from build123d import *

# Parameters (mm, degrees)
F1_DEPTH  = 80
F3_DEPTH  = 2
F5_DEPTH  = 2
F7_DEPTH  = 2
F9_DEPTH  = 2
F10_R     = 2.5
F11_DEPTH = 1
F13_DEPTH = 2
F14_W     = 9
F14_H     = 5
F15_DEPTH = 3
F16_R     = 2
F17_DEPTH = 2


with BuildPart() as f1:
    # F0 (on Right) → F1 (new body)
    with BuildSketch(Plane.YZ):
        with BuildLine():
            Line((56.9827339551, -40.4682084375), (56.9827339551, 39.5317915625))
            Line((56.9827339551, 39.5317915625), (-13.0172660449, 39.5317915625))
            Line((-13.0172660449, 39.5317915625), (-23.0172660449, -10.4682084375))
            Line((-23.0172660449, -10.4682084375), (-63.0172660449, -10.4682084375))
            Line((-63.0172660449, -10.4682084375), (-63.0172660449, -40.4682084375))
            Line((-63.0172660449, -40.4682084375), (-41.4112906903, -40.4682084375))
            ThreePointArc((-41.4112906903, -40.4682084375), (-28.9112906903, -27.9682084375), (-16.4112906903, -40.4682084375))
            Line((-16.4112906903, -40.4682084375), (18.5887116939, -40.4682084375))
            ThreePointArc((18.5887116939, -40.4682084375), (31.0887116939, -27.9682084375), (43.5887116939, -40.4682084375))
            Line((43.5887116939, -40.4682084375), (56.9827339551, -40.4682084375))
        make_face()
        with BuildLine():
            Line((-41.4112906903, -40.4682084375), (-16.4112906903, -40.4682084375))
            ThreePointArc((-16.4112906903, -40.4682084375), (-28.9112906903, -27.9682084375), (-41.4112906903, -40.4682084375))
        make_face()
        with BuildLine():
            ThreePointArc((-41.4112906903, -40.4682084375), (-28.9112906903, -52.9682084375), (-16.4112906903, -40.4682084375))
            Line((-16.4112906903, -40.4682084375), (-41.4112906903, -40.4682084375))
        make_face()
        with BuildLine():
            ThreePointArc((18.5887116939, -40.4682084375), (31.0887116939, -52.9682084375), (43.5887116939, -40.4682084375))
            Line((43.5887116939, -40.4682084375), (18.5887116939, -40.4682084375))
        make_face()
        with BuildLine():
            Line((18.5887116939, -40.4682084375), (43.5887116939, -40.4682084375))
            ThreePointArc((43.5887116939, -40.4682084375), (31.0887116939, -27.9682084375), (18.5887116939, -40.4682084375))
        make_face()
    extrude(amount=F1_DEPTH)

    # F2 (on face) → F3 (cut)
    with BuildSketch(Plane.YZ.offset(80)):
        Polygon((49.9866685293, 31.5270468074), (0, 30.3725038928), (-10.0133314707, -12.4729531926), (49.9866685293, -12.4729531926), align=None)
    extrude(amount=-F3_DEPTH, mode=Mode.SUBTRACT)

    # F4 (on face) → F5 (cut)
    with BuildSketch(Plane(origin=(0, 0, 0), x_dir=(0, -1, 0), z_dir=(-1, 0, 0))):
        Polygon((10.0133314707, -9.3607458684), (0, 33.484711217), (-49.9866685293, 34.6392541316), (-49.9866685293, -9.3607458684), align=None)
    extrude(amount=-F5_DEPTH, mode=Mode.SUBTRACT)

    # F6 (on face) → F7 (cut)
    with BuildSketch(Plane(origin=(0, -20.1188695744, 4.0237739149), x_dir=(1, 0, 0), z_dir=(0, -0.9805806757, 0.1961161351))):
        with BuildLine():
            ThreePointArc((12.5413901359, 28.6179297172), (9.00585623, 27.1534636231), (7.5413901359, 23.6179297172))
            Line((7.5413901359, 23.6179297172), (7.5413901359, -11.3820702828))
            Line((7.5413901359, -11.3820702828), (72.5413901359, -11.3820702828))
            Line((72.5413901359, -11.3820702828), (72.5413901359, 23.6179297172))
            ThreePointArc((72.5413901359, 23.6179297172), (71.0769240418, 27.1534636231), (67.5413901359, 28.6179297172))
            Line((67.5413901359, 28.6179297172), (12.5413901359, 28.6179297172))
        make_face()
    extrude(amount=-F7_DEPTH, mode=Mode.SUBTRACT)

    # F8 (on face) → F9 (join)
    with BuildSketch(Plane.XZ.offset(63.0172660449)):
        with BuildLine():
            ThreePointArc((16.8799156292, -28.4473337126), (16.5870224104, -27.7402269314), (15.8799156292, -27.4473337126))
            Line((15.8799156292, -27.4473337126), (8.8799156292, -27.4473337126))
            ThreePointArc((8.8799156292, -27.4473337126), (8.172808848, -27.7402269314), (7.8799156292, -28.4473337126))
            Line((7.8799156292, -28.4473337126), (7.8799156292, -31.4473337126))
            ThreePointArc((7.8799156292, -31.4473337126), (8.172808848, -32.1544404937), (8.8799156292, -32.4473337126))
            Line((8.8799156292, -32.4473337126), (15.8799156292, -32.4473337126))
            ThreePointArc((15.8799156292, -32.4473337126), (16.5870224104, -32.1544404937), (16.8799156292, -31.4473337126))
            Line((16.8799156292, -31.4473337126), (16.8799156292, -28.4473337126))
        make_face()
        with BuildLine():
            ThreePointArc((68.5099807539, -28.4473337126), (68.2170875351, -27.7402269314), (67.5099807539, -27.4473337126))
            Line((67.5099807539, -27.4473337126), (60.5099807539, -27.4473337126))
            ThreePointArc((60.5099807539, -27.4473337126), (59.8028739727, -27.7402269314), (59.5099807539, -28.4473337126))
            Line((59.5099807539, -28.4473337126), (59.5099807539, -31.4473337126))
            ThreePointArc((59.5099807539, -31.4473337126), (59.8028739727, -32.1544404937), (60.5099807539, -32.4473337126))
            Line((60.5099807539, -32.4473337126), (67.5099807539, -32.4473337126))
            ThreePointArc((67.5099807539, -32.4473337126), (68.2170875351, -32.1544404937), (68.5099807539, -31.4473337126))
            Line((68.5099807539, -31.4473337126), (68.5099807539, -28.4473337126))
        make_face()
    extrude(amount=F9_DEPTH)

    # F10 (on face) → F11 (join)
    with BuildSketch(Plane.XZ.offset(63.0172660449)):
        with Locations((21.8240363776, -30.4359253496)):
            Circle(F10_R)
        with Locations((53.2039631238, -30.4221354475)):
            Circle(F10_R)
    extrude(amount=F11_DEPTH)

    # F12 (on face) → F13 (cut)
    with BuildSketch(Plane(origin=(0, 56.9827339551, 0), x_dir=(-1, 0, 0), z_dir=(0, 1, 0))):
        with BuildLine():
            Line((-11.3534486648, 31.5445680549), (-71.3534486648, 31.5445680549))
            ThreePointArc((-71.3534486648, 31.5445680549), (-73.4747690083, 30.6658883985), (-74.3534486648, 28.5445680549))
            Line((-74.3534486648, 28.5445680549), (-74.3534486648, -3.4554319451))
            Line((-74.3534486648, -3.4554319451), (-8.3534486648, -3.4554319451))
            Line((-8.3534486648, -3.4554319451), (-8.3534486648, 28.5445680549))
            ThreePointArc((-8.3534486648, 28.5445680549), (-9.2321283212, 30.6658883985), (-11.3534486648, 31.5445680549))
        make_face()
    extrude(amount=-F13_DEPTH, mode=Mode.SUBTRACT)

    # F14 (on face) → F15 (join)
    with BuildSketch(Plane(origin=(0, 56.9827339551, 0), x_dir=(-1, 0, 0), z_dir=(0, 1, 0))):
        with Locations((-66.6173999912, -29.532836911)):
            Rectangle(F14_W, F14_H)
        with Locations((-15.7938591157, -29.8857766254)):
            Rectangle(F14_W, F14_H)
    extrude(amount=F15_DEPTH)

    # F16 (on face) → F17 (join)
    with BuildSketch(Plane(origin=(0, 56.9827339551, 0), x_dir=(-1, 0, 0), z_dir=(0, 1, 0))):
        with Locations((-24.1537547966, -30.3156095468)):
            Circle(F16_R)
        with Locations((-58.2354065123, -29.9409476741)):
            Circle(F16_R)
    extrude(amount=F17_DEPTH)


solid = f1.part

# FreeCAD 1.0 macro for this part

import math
import FreeCAD as App
import Part
import Sketcher
from FreeCAD import Vector


def add_polygon(sketch, points):
    """Adds a closed chain of lines whose ends are joined by coincident constraints."""
    first, n = sketch.GeometryCount, len(points)
    for a, b in zip(points, points[1:] + points[:1]):
        sketch.addGeometry(Part.LineSegment(App.Vector(*a, 0), App.Vector(*b, 0)), False)
    for i in range(n):
        sketch.addConstraint(Sketcher.Constraint("Coincident", first + i, 2, first + (i + 1) % n, 1))

doc = App.newDocument("Part")
body = doc.addObject("PartDesign::Body", "Body")

# Sketch on YZ plane
sketch1 = body.newObject("Sketcher::SketchObject", "Sketch")
sketch1.AttachmentSupport = (doc.getObject("YZ_Plane"), [""])
sketch1.MapMode = "FlatFace"
sketch1.addGeometry([
    Part.LineSegment(Vector(56.982734, -40.468208, 0), Vector(56.982734, 39.531792, 0)),  # 0
    Part.LineSegment(Vector(56.982734, 39.531792, 0), Vector(-13.017266, 39.531792, 0)),  # 1
    Part.LineSegment(Vector(-13.017266, 39.531792, 0), Vector(-23.017266, -10.468208, 0)),  # 2
    Part.LineSegment(Vector(-23.017266, -10.468208, 0), Vector(-63.017266, -10.468208, 0)),  # 3
    Part.LineSegment(Vector(-63.017266, -10.468208, 0), Vector(-63.017266, -40.468208, 0)),  # 4
    Part.LineSegment(Vector(-63.017266, -40.468208, 0), Vector(-41.411291, -40.468208, 0)),  # 5
    Part.ArcOfCircle(Part.Circle(Vector(-28.911291, -40.468208, 0), Vector(0, 0, 1), 12.5), math.radians(180), math.radians(360)),  # 6
    Part.LineSegment(Vector(-16.411291, -40.468208, 0), Vector(18.588712, -40.468208, 0)),  # 7
    Part.ArcOfCircle(Part.Circle(Vector(31.088712, -40.468208, 0), Vector(0, 0, 1), 12.5), math.radians(-180), math.radians(0)),  # 8
    Part.LineSegment(Vector(43.588712, -40.468208, 0), Vector(56.982734, -40.468208, 0)),  # 9
], False)
sketch1.addConstraint([
    Sketcher.Constraint("Coincident", 0, 2, 1, 1),
    Sketcher.Constraint("Coincident", 1, 2, 2, 1),
    Sketcher.Constraint("Coincident", 2, 2, 3, 1),
    Sketcher.Constraint("Coincident", 3, 2, 4, 1),
    Sketcher.Constraint("Coincident", 4, 2, 5, 1),
    Sketcher.Constraint("Coincident", 5, 2, 6, 1),
    Sketcher.Constraint("Coincident", 6, 2, 7, 1),
    Sketcher.Constraint("Coincident", 7, 2, 8, 1),
    Sketcher.Constraint("Coincident", 8, 2, 9, 1),
    Sketcher.Constraint("Coincident", 9, 2, 0, 1),
    Sketcher.Constraint("Vertical", 0),
    Sketcher.Constraint("Horizontal", 1),
    Sketcher.Constraint("Horizontal", 3),
    Sketcher.Constraint("Vertical", 4),
    Sketcher.Constraint("Horizontal", 5),
    Sketcher.Constraint("Horizontal", 7),
    Sketcher.Constraint("Horizontal", 9),
    Sketcher.Constraint("Equal", 6, 8),
    Sketcher.Constraint("Horizontal", 6, 3, 8, 3),
    Sketcher.Constraint("Horizontal", 8, 3, 4, 2),
    Sketcher.Constraint("Horizontal", 5, 2, 6, 2),
    Sketcher.Constraint("Horizontal", 7, 2, 8, 2),
    Sketcher.Constraint("Radius", 6, 12.5),
    Sketcher.Constraint("DistanceX", 1, 2, 1, 1, 70.0),
    Sketcher.Constraint("DistanceX", 3, 2, 3, 1, 40.0),
    Sketcher.Constraint("DistanceY", 0, 1, 0, 2, 80.0),
    Sketcher.Constraint("DistanceY", 4, 2, 4, 1, 30.0),
    Sketcher.Constraint("DistanceX", 2, 2, 1, 2, 10.0),
    Sketcher.Constraint("DistanceX", 5, 1, 5, 2, 21.605975),
    Sketcher.Constraint("DistanceX", 7, 1, 7, 2, 35.000002),
    Sketcher.Constraint("DistanceX", 6, 3, -1, 1, 28.911291),
    Sketcher.Constraint("DistanceY", 6, 3, -1, 1, 40.468208),
])
pad1 = body.newObject("PartDesign::Pad", "Pad")
pad1.Profile = sketch1
pad1.Length = 80

# Sketch on YZ plane
sketch2 = body.newObject("Sketcher::SketchObject", "Sketch001")
sketch2.AttachmentSupport = (doc.getObject("YZ_Plane"), [""])
sketch2.MapMode = "FlatFace"
sketch2.AttachmentOffset = App.Placement(Vector(0, 0, 80), App.Rotation())
add_polygon(sketch2, [(49.986669, 31.527047), (0, 30.372504), (-10.013331, -12.472953), (49.986669, -12.472953)])  # lines 0-3
sketch2.addConstraint([
    Sketcher.Constraint("Horizontal", 2),
    Sketcher.Constraint("Vertical", 3),
    Sketcher.Constraint("PointOnObject", 0, 2, -2),
    Sketcher.Constraint("DistanceX", 2, 1, 2, 2, 60.0),
    Sketcher.Constraint("DistanceY", 3, 1, 3, 2, 44.0),
    Sketcher.Constraint("Distance", 0, 50.0),
    Sketcher.Constraint("Distance", 1, 44.0),
    Sketcher.Constraint("DistanceY", -1, 1, 0, 2, 30.372504),
])
pocket1 = body.newObject("PartDesign::Pocket", "Pocket")
pocket1.Profile = sketch2
pocket1.Length = 2

# Sketch on YZ plane
sketch3 = body.newObject("Sketcher::SketchObject", "Sketch002")
sketch3.AttachmentSupport = (doc.getObject("YZ_Plane"), [""])
sketch3.MapMode = "FlatFace"
add_polygon(sketch3, [(-10.013331, -9.360746), (0, 33.484711), (49.986669, 34.639254), (49.986669, -9.360746)])  # lines 0-3
sketch3.addConstraint([
    Sketcher.Constraint("Vertical", 2),
    Sketcher.Constraint("Horizontal", 3),
    Sketcher.Constraint("PointOnObject", 0, 2, -2),
    Sketcher.Constraint("DistanceX", 3, 2, 3, 1, 60.0),
    Sketcher.Constraint("DistanceY", 2, 2, 2, 1, 44.0),
    Sketcher.Constraint("Distance", 0, 44.0),
    Sketcher.Constraint("Distance", 1, 50.0),
    Sketcher.Constraint("DistanceY", -1, 1, 0, 2, 33.484711),
])
pocket2 = body.newObject("PartDesign::Pocket", "Pocket001")
pocket2.Profile = sketch3
pocket2.Length = 2
pocket2.Reversed = True

# Sketch on an angled plane
sketch4 = body.newObject("Sketcher::SketchObject", "Sketch003")
sketch4.Placement = App.Placement(Vector(0, -20.11887, 4.023774), App.Rotation(Vector(1, 0, 0), Vector(0, 0.196116135, 0.980580676), Vector(0, -0.980580676, 0.196116135), "ZXY"))
sketch4.addGeometry([
    Part.ArcOfCircle(Part.Circle(Vector(12.54139, 23.61793, 0), Vector(0, 0, 1), 5), math.radians(90), math.radians(180)),  # 0
    Part.LineSegment(Vector(7.54139, 23.61793, 0), Vector(7.54139, -11.38207, 0)),  # 1
    Part.LineSegment(Vector(7.54139, -11.38207, 0), Vector(72.54139, -11.38207, 0)),  # 2
    Part.LineSegment(Vector(72.54139, -11.38207, 0), Vector(72.54139, 23.61793, 0)),  # 3
    Part.ArcOfCircle(Part.Circle(Vector(67.54139, 23.61793, 0), Vector(0, 0, 1), 5), math.radians(0), math.radians(90)),  # 4
    Part.LineSegment(Vector(67.54139, 28.61793, 0), Vector(12.54139, 28.61793, 0)),  # 5
], False)
sketch4.addConstraint([
    Sketcher.Constraint("Tangent", 0, 2, 1, 1),
    Sketcher.Constraint("Coincident", 1, 2, 2, 1),
    Sketcher.Constraint("Coincident", 2, 2, 3, 1),
    Sketcher.Constraint("Tangent", 3, 2, 4, 1),
    Sketcher.Constraint("Tangent", 4, 2, 5, 1),
    Sketcher.Constraint("Tangent", 5, 2, 0, 1),
    Sketcher.Constraint("Vertical", 1),
    Sketcher.Constraint("Horizontal", 2),
    Sketcher.Constraint("Vertical", 3),
    Sketcher.Constraint("Horizontal", 5),
    Sketcher.Constraint("Equal", 0, 4),
    Sketcher.Constraint("Radius", 0, 5.0),
    Sketcher.Constraint("DistanceX", 2, 1, 2, 2, 65.0),
    Sketcher.Constraint("DistanceY", 1, 2, 1, 1, 35.0),
    Sketcher.Constraint("DistanceX", -1, 1, 0, 3, 12.54139),
    Sketcher.Constraint("DistanceY", -1, 1, 0, 3, 23.61793),
])
pocket3 = body.newObject("PartDesign::Pocket", "Pocket002")
pocket3.Profile = sketch4
pocket3.Length = 2

# Sketch on XZ plane
sketch5 = body.newObject("Sketcher::SketchObject", "Sketch004")
sketch5.AttachmentSupport = (doc.getObject("XZ_Plane"), [""])
sketch5.MapMode = "FlatFace"
sketch5.AttachmentOffset = App.Placement(Vector(0, 0, 63.017266), App.Rotation())
sketch5.addGeometry([
    Part.ArcOfCircle(Part.Circle(Vector(15.879916, -28.447334, 0), Vector(0, 0, 1), 1), math.radians(0), math.radians(90)),  # 0
    Part.LineSegment(Vector(15.879916, -27.447334, 0), Vector(8.879916, -27.447334, 0)),  # 1
    Part.ArcOfCircle(Part.Circle(Vector(8.879916, -28.447334, 0), Vector(0, 0, 1), 1), math.radians(90), math.radians(180)),  # 2
    Part.LineSegment(Vector(7.879916, -28.447334, 0), Vector(7.879916, -31.447334, 0)),  # 3
    Part.ArcOfCircle(Part.Circle(Vector(8.879916, -31.447334, 0), Vector(0, 0, 1), 1), math.radians(-180), math.radians(-90)),  # 4
    Part.LineSegment(Vector(8.879916, -32.447334, 0), Vector(15.879916, -32.447334, 0)),  # 5
    Part.ArcOfCircle(Part.Circle(Vector(15.879916, -31.447334, 0), Vector(0, 0, 1), 1), math.radians(-90), math.radians(0)),  # 6
    Part.LineSegment(Vector(16.879916, -31.447334, 0), Vector(16.879916, -28.447334, 0)),  # 7
    Part.ArcOfCircle(Part.Circle(Vector(67.509981, -28.447334, 0), Vector(0, 0, 1), 1), math.radians(0), math.radians(90)),  # 8
    Part.LineSegment(Vector(67.509981, -27.447334, 0), Vector(60.509981, -27.447334, 0)),  # 9
    Part.ArcOfCircle(Part.Circle(Vector(60.509981, -28.447334, 0), Vector(0, 0, 1), 1), math.radians(90), math.radians(180)),  # 10
    Part.LineSegment(Vector(59.509981, -28.447334, 0), Vector(59.509981, -31.447334, 0)),  # 11
    Part.ArcOfCircle(Part.Circle(Vector(60.509981, -31.447334, 0), Vector(0, 0, 1), 1), math.radians(-180), math.radians(-90)),  # 12
    Part.LineSegment(Vector(60.509981, -32.447334, 0), Vector(67.509981, -32.447334, 0)),  # 13
    Part.ArcOfCircle(Part.Circle(Vector(67.509981, -31.447334, 0), Vector(0, 0, 1), 1), math.radians(-90), math.radians(0)),  # 14
    Part.LineSegment(Vector(68.509981, -31.447334, 0), Vector(68.509981, -28.447334, 0)),  # 15
], False)
sketch5.addConstraint([
    Sketcher.Constraint("Tangent", 0, 2, 1, 1),
    Sketcher.Constraint("Tangent", 1, 2, 2, 1),
    Sketcher.Constraint("Tangent", 2, 2, 3, 1),
    Sketcher.Constraint("Tangent", 3, 2, 4, 1),
    Sketcher.Constraint("Tangent", 4, 2, 5, 1),
    Sketcher.Constraint("Tangent", 5, 2, 6, 1),
    Sketcher.Constraint("Tangent", 6, 2, 7, 1),
    Sketcher.Constraint("Tangent", 7, 2, 0, 1),
    Sketcher.Constraint("Tangent", 8, 2, 9, 1),
    Sketcher.Constraint("Tangent", 9, 2, 10, 1),
    Sketcher.Constraint("Tangent", 10, 2, 11, 1),
    Sketcher.Constraint("Tangent", 11, 2, 12, 1),
    Sketcher.Constraint("Tangent", 12, 2, 13, 1),
    Sketcher.Constraint("Tangent", 13, 2, 14, 1),
    Sketcher.Constraint("Tangent", 14, 2, 15, 1),
    Sketcher.Constraint("Tangent", 15, 2, 8, 1),
    Sketcher.Constraint("Horizontal", 1),
    Sketcher.Constraint("Vertical", 3),
    Sketcher.Constraint("Horizontal", 5),
    Sketcher.Constraint("Vertical", 7),
    Sketcher.Constraint("Horizontal", 9),
    Sketcher.Constraint("Vertical", 11),
    Sketcher.Constraint("Horizontal", 13),
    Sketcher.Constraint("Vertical", 15),
    Sketcher.Constraint("Equal", 0, 2),
    Sketcher.Constraint("Equal", 2, 4),
    Sketcher.Constraint("Equal", 4, 6),
    Sketcher.Constraint("Equal", 6, 8),
    Sketcher.Constraint("Equal", 8, 10),
    Sketcher.Constraint("Equal", 10, 12),
    Sketcher.Constraint("Equal", 12, 14),
    Sketcher.Constraint("Horizontal", 2, 3, 8, 3),
    Sketcher.Constraint("Horizontal", 6, 3, 12, 3),
    Sketcher.Constraint("Equal", 5, 9),
    Sketcher.Constraint("Radius", 0, 1.0),
    Sketcher.Constraint("DistanceX", 1, 2, 1, 1, 7.0),
    Sketcher.Constraint("DistanceY", 3, 2, 3, 1, 3.0),
    Sketcher.Constraint("DistanceX", -1, 1, 8, 3, 67.509981),
    Sketcher.Constraint("DistanceX", -1, 1, 0, 3, 15.879916),
    Sketcher.Constraint("DistanceY", 0, 3, -1, 1, 28.447334),
])
pad2 = body.newObject("PartDesign::Pad", "Pad001")
pad2.Profile = sketch5
pad2.Length = 2

# Sketch on XZ plane
sketch6 = body.newObject("Sketcher::SketchObject", "Sketch005")
sketch6.AttachmentSupport = (doc.getObject("XZ_Plane"), [""])
sketch6.MapMode = "FlatFace"
sketch6.AttachmentOffset = App.Placement(Vector(0, 0, 63.017266), App.Rotation())
sketch6.addGeometry([
    Part.Circle(Vector(21.824036, -30.435925, 0), Vector(0, 0, 1), 2.5),
    Part.Circle(Vector(53.203963, -30.422135, 0), Vector(0, 0, 1), 2.5),
], False)
sketch6.addConstraint([
    Sketcher.Constraint("Equal", 0, 1),
    Sketcher.Constraint("Diameter", 0, 5.0),
    Sketcher.Constraint("DistanceY", 0, 3, 1, 3, 0.01379),
    Sketcher.Constraint("DistanceX", -1, 1, 0, 3, 21.824036),
    Sketcher.Constraint("DistanceY", 0, 3, -1, 1, 30.435925),
    Sketcher.Constraint("DistanceX", -1, 1, 1, 3, 53.203963),
])
pad3 = body.newObject("PartDesign::Pad", "Pad002")
pad3.Profile = sketch6
pad3.Length = 1

# Sketch on XZ plane
sketch7 = body.newObject("Sketcher::SketchObject", "Sketch006")
sketch7.AttachmentSupport = (doc.getObject("XZ_Plane"), [""])
sketch7.MapMode = "FlatFace"
sketch7.AttachmentOffset = App.Placement(Vector(0, 0, -56.982734), App.Rotation())
sketch7.addGeometry([
    Part.LineSegment(Vector(11.353449, 31.544568, 0), Vector(71.353449, 31.544568, 0)),  # 0
    Part.ArcOfCircle(Part.Circle(Vector(71.353449, 28.544568, 0), Vector(0, 0, 1), 3), math.radians(0), math.radians(90)),  # 1
    Part.LineSegment(Vector(74.353449, 28.544568, 0), Vector(74.353449, -3.455432, 0)),  # 2
    Part.LineSegment(Vector(74.353449, -3.455432, 0), Vector(8.353449, -3.455432, 0)),  # 3
    Part.LineSegment(Vector(8.353449, -3.455432, 0), Vector(8.353449, 28.544568, 0)),  # 4
    Part.ArcOfCircle(Part.Circle(Vector(11.353449, 28.544568, 0), Vector(0, 0, 1), 3), math.radians(90), math.radians(180)),  # 5
], False)
sketch7.addConstraint([
    Sketcher.Constraint("Tangent", 0, 2, 1, 2),
    Sketcher.Constraint("Tangent", 1, 1, 2, 1),
    Sketcher.Constraint("Coincident", 2, 2, 3, 1),
    Sketcher.Constraint("Coincident", 3, 2, 4, 1),
    Sketcher.Constraint("Tangent", 4, 2, 5, 2),
    Sketcher.Constraint("Tangent", 5, 1, 0, 1),
    Sketcher.Constraint("Horizontal", 0),
    Sketcher.Constraint("Vertical", 2),
    Sketcher.Constraint("Horizontal", 3),
    Sketcher.Constraint("Vertical", 4),
    Sketcher.Constraint("Equal", 1, 5),
    Sketcher.Constraint("Radius", 1, 3.0),
    Sketcher.Constraint("DistanceX", 0, 1, 0, 2, 60.0),
    Sketcher.Constraint("DistanceY", 2, 2, 2, 1, 32.0),
    Sketcher.Constraint("DistanceX", -1, 1, 1, 3, 71.353449),
    Sketcher.Constraint("DistanceY", -1, 1, 1, 3, 28.544568),
])
pocket4 = body.newObject("PartDesign::Pocket", "Pocket003")
pocket4.Profile = sketch7
pocket4.Length = 2
pocket4.Reversed = True

# Sketch on XZ plane
sketch8 = body.newObject("Sketcher::SketchObject", "Sketch007")
sketch8.AttachmentSupport = (doc.getObject("XZ_Plane"), [""])
sketch8.MapMode = "FlatFace"
sketch8.AttachmentOffset = App.Placement(Vector(0, 0, -56.982734), App.Rotation())
add_polygon(sketch8, [(71.1174, -27.032837), (71.1174, -32.032837), (62.1174, -32.032837), (62.1174, -27.032837)])  # lines 0-3
add_polygon(sketch8, [(20.293859, -27.385777), (20.293859, -32.385777), (11.293859, -32.385777), (11.293859, -27.385777)])  # lines 4-7
sketch8.addConstraint([
    Sketcher.Constraint("Vertical", 0),
    Sketcher.Constraint("Horizontal", 1),
    Sketcher.Constraint("Vertical", 2),
    Sketcher.Constraint("Horizontal", 3),
    Sketcher.Constraint("Vertical", 4),
    Sketcher.Constraint("Horizontal", 5),
    Sketcher.Constraint("Vertical", 6),
    Sketcher.Constraint("Horizontal", 7),
    Sketcher.Constraint("Equal", 3, 5),
    Sketcher.Constraint("Equal", 2, 4),
    Sketcher.Constraint("DistanceX", 1, 2, 1, 1, 9.0),
    Sketcher.Constraint("DistanceY", 0, 2, 0, 1, 5.0),
    Sketcher.Constraint("DistanceX", -1, 1, 0, 2, 71.1174),
    Sketcher.Constraint("DistanceX", -1, 1, 4, 2, 20.293859),
    Sketcher.Constraint("DistanceY", 4, 2, 1, 2, 0.35294),
    Sketcher.Constraint("DistanceY", 0, 2, -1, 1, 32.032837),
])
pad4 = body.newObject("PartDesign::Pad", "Pad003")
pad4.Profile = sketch8
pad4.Length = 3
pad4.Reversed = True

# Sketch on XZ plane
sketch9 = body.newObject("Sketcher::SketchObject", "Sketch008")
sketch9.AttachmentSupport = (doc.getObject("XZ_Plane"), [""])
sketch9.MapMode = "FlatFace"
sketch9.AttachmentOffset = App.Placement(Vector(0, 0, -56.982734), App.Rotation())
sketch9.addGeometry([
    Part.Circle(Vector(24.153755, -30.31561, 0), Vector(0, 0, 1), 2),
    Part.Circle(Vector(58.235407, -29.940948, 0), Vector(0, 0, 1), 2),
], False)
sketch9.addConstraint([
    Sketcher.Constraint("Equal", 0, 1),
    Sketcher.Constraint("Diameter", 0, 4.0),
    Sketcher.Constraint("DistanceY", 0, 3, -1, 1, 30.31561),
    Sketcher.Constraint("DistanceX", 0, 3, 1, 3, 34.081652),
    Sketcher.Constraint("DistanceY", 0, 3, 1, 3, 0.374662),
    Sketcher.Constraint("DistanceX", -1, 1, 0, 3, 24.153755),
])
pad5 = body.newObject("PartDesign::Pad", "Pad004")
pad5.Profile = sketch9
pad5.Length = 2
pad5.Reversed = True

doc.recompute()
